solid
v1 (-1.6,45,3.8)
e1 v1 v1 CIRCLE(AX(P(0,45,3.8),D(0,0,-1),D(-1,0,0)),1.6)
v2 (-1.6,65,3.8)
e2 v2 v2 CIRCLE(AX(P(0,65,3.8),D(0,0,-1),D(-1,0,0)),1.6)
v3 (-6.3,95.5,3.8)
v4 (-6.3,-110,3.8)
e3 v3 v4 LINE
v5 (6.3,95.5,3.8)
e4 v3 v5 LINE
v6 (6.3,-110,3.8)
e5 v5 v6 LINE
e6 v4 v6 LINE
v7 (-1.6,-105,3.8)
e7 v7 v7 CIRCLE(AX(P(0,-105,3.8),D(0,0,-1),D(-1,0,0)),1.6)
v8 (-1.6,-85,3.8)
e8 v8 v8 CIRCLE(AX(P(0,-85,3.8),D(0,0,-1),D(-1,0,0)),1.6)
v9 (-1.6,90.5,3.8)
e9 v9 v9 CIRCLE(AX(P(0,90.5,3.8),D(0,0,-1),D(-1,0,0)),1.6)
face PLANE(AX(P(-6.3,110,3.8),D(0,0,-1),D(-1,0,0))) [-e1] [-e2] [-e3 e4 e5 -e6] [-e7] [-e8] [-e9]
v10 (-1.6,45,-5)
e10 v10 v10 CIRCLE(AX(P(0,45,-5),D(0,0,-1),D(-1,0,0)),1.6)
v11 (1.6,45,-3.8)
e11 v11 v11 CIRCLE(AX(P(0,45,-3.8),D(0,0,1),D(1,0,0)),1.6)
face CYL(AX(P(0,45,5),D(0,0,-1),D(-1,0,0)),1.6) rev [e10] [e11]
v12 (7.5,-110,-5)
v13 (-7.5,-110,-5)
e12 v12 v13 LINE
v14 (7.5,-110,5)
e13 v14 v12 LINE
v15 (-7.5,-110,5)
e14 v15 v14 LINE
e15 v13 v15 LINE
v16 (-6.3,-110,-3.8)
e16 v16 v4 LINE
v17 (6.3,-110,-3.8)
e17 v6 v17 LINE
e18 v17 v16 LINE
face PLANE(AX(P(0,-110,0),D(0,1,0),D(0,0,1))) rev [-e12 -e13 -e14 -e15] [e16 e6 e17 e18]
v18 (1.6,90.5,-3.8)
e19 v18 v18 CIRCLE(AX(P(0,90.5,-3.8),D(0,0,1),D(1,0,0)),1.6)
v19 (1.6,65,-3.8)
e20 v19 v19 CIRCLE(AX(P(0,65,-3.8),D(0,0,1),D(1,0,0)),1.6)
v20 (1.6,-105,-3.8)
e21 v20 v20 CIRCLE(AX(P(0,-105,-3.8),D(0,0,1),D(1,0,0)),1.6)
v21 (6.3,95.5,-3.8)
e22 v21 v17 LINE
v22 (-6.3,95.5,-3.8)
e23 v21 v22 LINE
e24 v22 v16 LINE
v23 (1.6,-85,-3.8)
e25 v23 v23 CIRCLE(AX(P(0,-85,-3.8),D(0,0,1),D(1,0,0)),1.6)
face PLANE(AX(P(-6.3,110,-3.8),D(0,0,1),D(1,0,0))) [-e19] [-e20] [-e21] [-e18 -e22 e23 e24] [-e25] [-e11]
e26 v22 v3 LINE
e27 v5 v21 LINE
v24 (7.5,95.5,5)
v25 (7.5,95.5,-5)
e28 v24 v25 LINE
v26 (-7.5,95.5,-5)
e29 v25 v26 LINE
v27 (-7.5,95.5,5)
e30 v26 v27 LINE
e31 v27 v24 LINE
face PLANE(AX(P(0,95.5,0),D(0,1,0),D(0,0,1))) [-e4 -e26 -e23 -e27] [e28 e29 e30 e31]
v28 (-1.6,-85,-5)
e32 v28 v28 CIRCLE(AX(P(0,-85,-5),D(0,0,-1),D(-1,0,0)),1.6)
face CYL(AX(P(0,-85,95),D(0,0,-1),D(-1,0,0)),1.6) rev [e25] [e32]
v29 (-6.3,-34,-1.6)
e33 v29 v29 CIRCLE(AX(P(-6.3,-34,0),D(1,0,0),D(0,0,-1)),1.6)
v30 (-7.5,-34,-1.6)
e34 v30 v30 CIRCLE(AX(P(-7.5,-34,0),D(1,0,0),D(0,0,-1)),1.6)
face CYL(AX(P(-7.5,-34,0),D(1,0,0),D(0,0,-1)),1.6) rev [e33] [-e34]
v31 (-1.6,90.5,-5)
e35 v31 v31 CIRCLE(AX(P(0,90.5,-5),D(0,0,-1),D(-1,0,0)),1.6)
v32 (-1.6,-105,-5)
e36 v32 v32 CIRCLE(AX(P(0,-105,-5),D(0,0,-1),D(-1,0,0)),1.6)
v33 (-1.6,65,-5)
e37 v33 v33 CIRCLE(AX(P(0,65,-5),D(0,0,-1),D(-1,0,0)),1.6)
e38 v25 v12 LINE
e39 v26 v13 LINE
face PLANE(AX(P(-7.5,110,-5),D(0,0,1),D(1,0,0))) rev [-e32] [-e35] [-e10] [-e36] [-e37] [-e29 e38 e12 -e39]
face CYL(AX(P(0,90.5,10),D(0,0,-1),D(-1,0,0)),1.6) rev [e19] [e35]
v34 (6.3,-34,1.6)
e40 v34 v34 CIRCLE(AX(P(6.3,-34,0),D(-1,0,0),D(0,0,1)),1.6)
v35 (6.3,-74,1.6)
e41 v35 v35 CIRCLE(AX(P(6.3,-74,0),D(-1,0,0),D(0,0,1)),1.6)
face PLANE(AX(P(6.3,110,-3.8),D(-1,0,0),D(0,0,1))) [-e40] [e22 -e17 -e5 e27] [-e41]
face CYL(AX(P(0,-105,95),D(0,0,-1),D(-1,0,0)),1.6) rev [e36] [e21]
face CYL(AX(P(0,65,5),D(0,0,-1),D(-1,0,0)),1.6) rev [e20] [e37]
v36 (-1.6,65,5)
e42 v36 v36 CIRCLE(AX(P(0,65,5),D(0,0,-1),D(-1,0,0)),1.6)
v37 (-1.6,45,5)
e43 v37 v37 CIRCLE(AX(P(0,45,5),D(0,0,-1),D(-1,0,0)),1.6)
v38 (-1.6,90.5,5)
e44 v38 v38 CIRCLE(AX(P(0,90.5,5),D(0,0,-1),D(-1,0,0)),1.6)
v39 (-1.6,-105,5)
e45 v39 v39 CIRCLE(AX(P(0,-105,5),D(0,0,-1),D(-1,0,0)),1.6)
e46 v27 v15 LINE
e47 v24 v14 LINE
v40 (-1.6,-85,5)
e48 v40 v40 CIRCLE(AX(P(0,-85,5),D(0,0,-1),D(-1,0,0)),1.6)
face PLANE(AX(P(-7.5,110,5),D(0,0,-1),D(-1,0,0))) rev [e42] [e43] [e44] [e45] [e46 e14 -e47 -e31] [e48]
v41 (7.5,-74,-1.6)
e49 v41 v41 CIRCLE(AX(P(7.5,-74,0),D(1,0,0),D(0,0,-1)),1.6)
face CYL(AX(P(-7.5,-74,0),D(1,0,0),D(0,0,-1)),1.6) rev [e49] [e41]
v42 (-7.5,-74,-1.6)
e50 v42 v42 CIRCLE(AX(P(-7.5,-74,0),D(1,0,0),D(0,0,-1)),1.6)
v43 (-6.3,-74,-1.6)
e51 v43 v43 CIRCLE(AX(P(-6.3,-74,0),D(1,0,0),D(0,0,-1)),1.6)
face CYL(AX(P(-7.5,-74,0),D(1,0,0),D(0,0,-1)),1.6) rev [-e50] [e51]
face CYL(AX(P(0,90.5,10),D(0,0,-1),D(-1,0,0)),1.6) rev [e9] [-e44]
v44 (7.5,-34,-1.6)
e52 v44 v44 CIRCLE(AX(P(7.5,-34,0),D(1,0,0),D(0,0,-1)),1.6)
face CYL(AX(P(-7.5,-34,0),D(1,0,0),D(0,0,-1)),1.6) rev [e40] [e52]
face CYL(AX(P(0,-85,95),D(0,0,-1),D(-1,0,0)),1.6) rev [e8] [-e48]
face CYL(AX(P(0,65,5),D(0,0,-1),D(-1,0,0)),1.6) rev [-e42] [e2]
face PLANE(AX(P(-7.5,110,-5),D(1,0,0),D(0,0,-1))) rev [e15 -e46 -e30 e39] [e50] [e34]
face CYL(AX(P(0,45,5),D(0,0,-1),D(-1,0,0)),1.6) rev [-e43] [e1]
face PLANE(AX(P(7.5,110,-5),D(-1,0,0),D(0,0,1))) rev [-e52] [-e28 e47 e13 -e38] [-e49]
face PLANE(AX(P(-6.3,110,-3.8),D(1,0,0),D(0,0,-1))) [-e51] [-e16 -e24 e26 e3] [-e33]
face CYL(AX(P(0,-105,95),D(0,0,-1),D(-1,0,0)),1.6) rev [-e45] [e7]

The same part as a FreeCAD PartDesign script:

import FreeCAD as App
import Part
import Sketcher
from FreeCAD import Vector


def add_polygon(sketch, points):
    """Adds a closed chain of lines whose ends are joined by coincident constraints."""
    first, n = sketch.GeometryCount, len(points)
    for a, b in zip(points, points[1:] + points[:1]):
        sketch.addGeometry(Part.LineSegment(App.Vector(*a, 0), App.Vector(*b, 0)), False)
    for i in range(n):
        sketch.addConstraint(Sketcher.Constraint("Coincident", first + i, 2, first + (i + 1) % n, 1))

doc = App.newDocument("Part")
params = doc.addObject("Spreadsheet::Sheet", "Params")
for row, (alias, value) in enumerate([
    ("sketch1_width", "15 mm"),
    ("sketch1_height", "10 mm"),
    ("sketch1_width2", "12.6 mm"),
    ("sketch1_height2", "7.6 mm"),
    ("pad1_length", "220 mm"),
    ("sketch2_diameter", "3.2 mm"),
    ("pocket1_length", "100 mm"),
    ("sketch3_diameter", "3.2 mm"),
    ("pocket2_length", "15 mm"),
    ("sketch4_diameter", "3.2 mm"),
    ("pocket3_length", "10 mm"),
    ("sketch5_width", "15 mm"),
    ("sketch5_height", "10 mm"),
    ("pocket4_length", "14.5 mm"),
    ("sketch6_diameter", "3.2 mm"),
    ("pocket5_length", "15 mm"),
], start=1):
    params.set(f"A{row}", alias)
    params.set(f"B{row}", "=" + value)
    params.setAlias(f"B{row}", alias)

body = doc.addObject("PartDesign::Body", "Body")

# Sketch on XZ plane
sketch1 = body.newObject("Sketcher::SketchObject", "Sketch")
sketch1.AttachmentSupport = (doc.getObject("XZ_Plane"), [""])
sketch1.MapMode = "FlatFace"
add_polygon(sketch1, [(-7.5, -5), (-7.5, 5), (7.5, 5), (7.5, -5)])  # lines 0-3
add_polygon(sketch1, [(6.3, 3.8), (-6.3, 3.8), (-6.3, -3.8), (6.3, -3.8)])  # lines 4-7
sketch1.addConstraint([
    Sketcher.Constraint("Vertical", 0),
    Sketcher.Constraint("Horizontal", 1),
    Sketcher.Constraint("Vertical", 2),
    Sketcher.Constraint("Horizontal", 3),
    Sketcher.Constraint("Horizontal", 4),
    Sketcher.Constraint("Vertical", 5),
    Sketcher.Constraint("Horizontal", 6),
    Sketcher.Constraint("Vertical", 7),
    Sketcher.Constraint("Symmetric", 0, 2, 2, 2, -1, 1),
    Sketcher.Constraint("Symmetric", 4, 2, 6, 2, -1, 1),
    Sketcher.Constraint("DistanceX", 1, 1, 1, 2, 15.0),
    Sketcher.Constraint("DistanceY", 0, 1, 0, 2, 10.0),
    Sketcher.Constraint("DistanceX", 4, 2, 4, 1, 12.6),
    Sketcher.Constraint("DistanceY", 5, 2, 5, 1, 7.6),
])
sketch1.setExpression("Constraints[18]", "Params.sketch1_width")
sketch1.setExpression("Constraints[19]", "Params.sketch1_height")
sketch1.setExpression("Constraints[20]", "Params.sketch1_width2")
sketch1.setExpression("Constraints[21]", "Params.sketch1_height2")
pad1 = body.newObject("PartDesign::Pad", "Pad")
pad1.Profile = sketch1
pad1.setExpression("Length", "Params.pad1_length")
pad1.Midplane = True

# Sketch on XY plane
sketch2 = body.newObject("Sketcher::SketchObject", "Sketch001")
sketch2.AttachmentSupport = (doc.getObject("XY_Plane"), [""])
sketch2.MapMode = "FlatFace"
sketch2.AttachmentOffset = App.Placement(Vector(0, 0, -5), App.Rotation())
sketch2.addGeometry([
    Part.Circle(Vector(0, -85, 0), Vector(0, 0, 1), 1.6),
    Part.Circle(Vector(0, -105, 0), Vector(0, 0, 1), 1.6),
], False)
sketch2.addConstraint([
    Sketcher.Constraint("Equal", 0, 1),
    Sketcher.Constraint("PointOnObject", 0, 3, -2),
    Sketcher.Constraint("PointOnObject", 1, 3, -2),
    Sketcher.Constraint("Diameter", 0, 3.2),
    Sketcher.Constraint("DistanceY", 0, 3, -1, 1, 85.0),
    Sketcher.Constraint("DistanceY", 1, 3, -1, 1, 105.0),
])
sketch2.setExpression("Constraints[3]", "Params.sketch2_diameter")
pocket1 = body.newObject("PartDesign::Pocket", "Pocket")
pocket1.Profile = sketch2
pocket1.setExpression("Length", "Params.pocket1_length")
pocket1.Reversed = True

# Sketch on YZ plane
sketch3 = body.newObject("Sketcher::SketchObject", "Sketch002")
sketch3.AttachmentSupport = (doc.getObject("YZ_Plane"), [""])
sketch3.MapMode = "FlatFace"
sketch3.AttachmentOffset = App.Placement(Vector(0, 0, 7.5), App.Rotation())
sketch3.addGeometry([
    Part.Circle(Vector(-34, 0, 0), Vector(0, 0, 1), 1.6),
    Part.Circle(Vector(-74, 0, 0), Vector(0, 0, 1), 1.6),
], False)
sketch3.addConstraint([
    Sketcher.Constraint("Equal", 0, 1),
    Sketcher.Constraint("PointOnObject", 0, 3, -1),
    Sketcher.Constraint("PointOnObject", 1, 3, -1),
    Sketcher.Constraint("Diameter", 0, 3.2),
    Sketcher.Constraint("DistanceX", 0, 3, -1, 1, 34.0),
    Sketcher.Constraint("DistanceX", 1, 3, -1, 1, 74.0),
])
sketch3.setExpression("Constraints[3]", "Params.sketch3_diameter")
pocket2 = body.newObject("PartDesign::Pocket", "Pocket001")
pocket2.Profile = sketch3
pocket2.setExpression("Length", "Params.pocket2_length")

# Sketch on XY plane
sketch4 = body.newObject("Sketcher::SketchObject", "Sketch003")
sketch4.AttachmentSupport = (doc.getObject("XY_Plane"), [""])
sketch4.MapMode = "FlatFace"
sketch4.AttachmentOffset = App.Placement(Vector(0, 0, -5), App.Rotation())
sketch4.addGeometry([
    Part.Circle(Vector(0, 65, 0), Vector(0, 0, 1), 1.6),
    Part.Circle(Vector(0, 45, 0), Vector(0, 0, 1), 1.6),
], False)
sketch4.addConstraint([
    Sketcher.Constraint("Equal", 0, 1),
    Sketcher.Constraint("PointOnObject", 0, 3, -2),
    Sketcher.Constraint("PointOnObject", 1, 3, -2),
    Sketcher.Constraint("Diameter", 0, 3.2),
    Sketcher.Constraint("DistanceY", -1, 1, 0, 3, 65.0),
    Sketcher.Constraint("DistanceY", -1, 1, 1, 3, 45.0),
])
sketch4.setExpression("Constraints[3]", "Params.sketch4_diameter")
pocket3 = body.newObject("PartDesign::Pocket", "Pocket002")
pocket3.Profile = sketch4
pocket3.setExpression("Length", "Params.pocket3_length")
pocket3.Reversed = True

# Sketch on XZ plane
sketch5 = body.newObject("Sketcher::SketchObject", "Sketch004")
sketch5.AttachmentSupport = (doc.getObject("XZ_Plane"), [""])
sketch5.MapMode = "FlatFace"
sketch5.AttachmentOffset = App.Placement(Vector(0, 0, -110), App.Rotation())
add_polygon(sketch5, [(-7.5, -5), (-7.5, 5), (7.5, 5), (7.5, -5)])  # lines 0-3
sketch5.addConstraint([
    Sketcher.Constraint("Vertical", 0),
    Sketcher.Constraint("Horizontal", 1),
    Sketcher.Constraint("Vertical", 2),
    Sketcher.Constraint("Horizontal", 3),
    Sketcher.Constraint("Symmetric", 0, 2, 2, 2, -1, 1),
    Sketcher.Constraint("DistanceX", 1, 1, 1, 2, 15.0),
    Sketcher.Constraint("DistanceY", 0, 1, 0, 2, 10.0),
])
sketch5.setExpression("Constraints[9]", "Params.sketch5_width")
sketch5.setExpression("Constraints[10]", "Params.sketch5_height")
pocket4 = body.newObject("PartDesign::Pocket", "Pocket003")
pocket4.Profile = sketch5
pocket4.setExpression("Length", "Params.pocket4_length")
pocket4.Reversed = True

# Sketch on XY plane
sketch6 = body.newObject("Sketcher::SketchObject", "Sketch005")
sketch6.AttachmentSupport = (doc.getObject("XY_Plane"), [""])
sketch6.MapMode = "FlatFace"
sketch6.AttachmentOffset = App.Placement(Vector(0, 0, -5), App.Rotation())
sketch6.addGeometry(Part.Circle(Vector(0, 90.5, 0), Vector(0, 0, 1), 1.6), False)
sketch6.addConstraint([
    Sketcher.Constraint("PointOnObject", 0, 3, -2),
    Sketcher.Constraint("Diameter", 0, 3.2),
    Sketcher.Constraint("DistanceY", -1, 1, 0, 3, 90.5),
])
sketch6.setExpression("Constraints[1]", "Params.sketch6_diameter")
pocket5 = body.newObject("PartDesign::Pocket", "Pocket004")
pocket5.Profile = sketch6
pocket5.setExpression("Length", "Params.pocket5_length")
pocket5.Reversed = True

doc.recompute()
